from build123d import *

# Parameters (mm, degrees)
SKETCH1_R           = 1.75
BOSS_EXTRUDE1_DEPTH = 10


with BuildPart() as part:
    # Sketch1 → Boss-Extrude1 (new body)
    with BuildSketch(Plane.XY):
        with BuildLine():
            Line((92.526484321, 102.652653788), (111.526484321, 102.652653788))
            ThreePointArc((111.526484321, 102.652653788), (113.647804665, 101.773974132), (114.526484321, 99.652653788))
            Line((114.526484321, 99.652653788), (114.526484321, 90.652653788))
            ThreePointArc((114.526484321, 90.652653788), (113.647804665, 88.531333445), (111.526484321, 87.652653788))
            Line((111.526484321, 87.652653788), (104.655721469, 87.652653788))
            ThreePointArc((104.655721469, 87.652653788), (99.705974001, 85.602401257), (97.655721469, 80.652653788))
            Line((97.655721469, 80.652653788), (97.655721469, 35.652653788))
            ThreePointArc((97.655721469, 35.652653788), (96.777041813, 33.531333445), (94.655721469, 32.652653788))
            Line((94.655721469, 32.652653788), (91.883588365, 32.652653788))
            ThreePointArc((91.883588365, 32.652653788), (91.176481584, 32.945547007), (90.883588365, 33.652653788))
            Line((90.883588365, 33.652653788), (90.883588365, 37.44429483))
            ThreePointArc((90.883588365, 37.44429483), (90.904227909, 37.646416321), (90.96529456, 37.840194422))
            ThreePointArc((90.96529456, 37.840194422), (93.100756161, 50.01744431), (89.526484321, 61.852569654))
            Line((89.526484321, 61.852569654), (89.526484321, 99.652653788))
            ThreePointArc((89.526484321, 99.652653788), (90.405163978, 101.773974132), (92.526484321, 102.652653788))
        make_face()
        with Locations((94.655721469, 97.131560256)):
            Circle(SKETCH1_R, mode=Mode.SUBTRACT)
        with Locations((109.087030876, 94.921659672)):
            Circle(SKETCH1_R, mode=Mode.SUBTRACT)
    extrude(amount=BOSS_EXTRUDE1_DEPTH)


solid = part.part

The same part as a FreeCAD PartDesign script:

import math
import FreeCAD as App
import Part
import Sketcher
from FreeCAD import Vector
Q = App.Units.Quantity

doc = App.newDocument("Part")
body = doc.addObject("PartDesign::Body", "Body")

sketch1 = doc.addObject("Sketcher::SketchObject", "Sketch")
body.addObject(sketch1)
sketch1.AttachmentSupport = (doc.XY_Plane, [""])
sketch1.MapMode = "FlatFace"
sketch1.addGeometry(Part.LineSegment(Vector(111.53, 102.65, 0), Vector(92.53, 102.65, 0)), False)
sketch1.addGeometry(Part.ArcOfCircle(Part.Circle(Vector(92.53, 99.65, 0), Vector(0, 0, 1), 3), math.radians(90), math.radians(180)), False)
sketch1.addGeometry(Part.LineSegment(Vector(89.53, 99.65, 0), Vector(89.53, 61.85, 0)), False)
sketch1.addGeometry(Part.ArcOfCircle(Part.Circle(Vector(66.43, 48.42, 0), Vector(0, 0, 1), 26.72), math.radians(-23), math.radians(30)), False)
sketch1.addGeometry(Part.ArcOfCircle(Part.Circle(Vector(91.88, 37.44, 0), Vector(0, 0, 1), 1), math.radians(157), math.radians(180)), False)
sketch1.addGeometry(Part.LineSegment(Vector(90.88, 37.44, 0), Vector(90.88, 33.65, 0)), False)
sketch1.addGeometry(Part.ArcOfCircle(Part.Circle(Vector(91.88, 33.65, 0), Vector(0, 0, 1), 1), math.radians(-180), math.radians(-90)), False)
sketch1.addGeometry(Part.LineSegment(Vector(91.88, 32.65, 0), Vector(94.66, 32.65, 0)), False)
sketch1.addGeometry(Part.ArcOfCircle(Part.Circle(Vector(94.66, 35.65, 0), Vector(0, 0, 1), 3), math.radians(-90), math.radians(0)), False)
sketch1.addGeometry(Part.LineSegment(Vector(97.66, 35.65, 0), Vector(97.66, 80.65, 0)), False)
sketch1.addGeometry(Part.ArcOfCircle(Part.Circle(Vector(104.66, 80.65, 0), Vector(0, 0, 1), 7), math.radians(90), math.radians(180)), False)
sketch1.addGeometry(Part.LineSegment(Vector(104.66, 87.65, 0), Vector(111.53, 87.65, 0)), False)
sketch1.addGeometry(Part.ArcOfCircle(Part.Circle(Vector(111.53, 90.65, 0), Vector(0, 0, 1), 3), math.radians(-90), math.radians(0)), False)
sketch1.addGeometry(Part.LineSegment(Vector(114.53, 90.65, 0), Vector(114.53, 99.65, 0)), False)
sketch1.addGeometry(Part.ArcOfCircle(Part.Circle(Vector(111.53, 99.65, 0), Vector(0, 0, 1), 3), math.radians(0), math.radians(90)), False)
sketch1.addGeometry(Part.Circle(Vector(109.09, 94.92, 0), Vector(0, 0, 1), 1.75), False)
sketch1.addGeometry(Part.Circle(Vector(94.66, 97.13, 0), Vector(0, 0, 1), 1.75), False)
sketch1.addConstraint(Sketcher.Constraint("Tangent", 0, 2, 1, 1))
sketch1.addConstraint(Sketcher.Constraint("Tangent", 1, 2, 2, 1))
sketch1.addConstraint(Sketcher.Constraint("Coincident", 2, 2, 3, 2))
sketch1.addConstraint(Sketcher.Constraint("Tangent", 3, 1, 4, 1))
sketch1.addConstraint(Sketcher.Constraint("Tangent", 4, 2, 5, 1))
sketch1.addConstraint(Sketcher.Constraint("Tangent", 5, 2, 6, 1))
sketch1.addConstraint(Sketcher.Constraint("Tangent", 6, 2, 7, 1))
sketch1.addConstraint(Sketcher.Constraint("Tangent", 7, 2, 8, 1))
sketch1.addConstraint(Sketcher.Constraint("Tangent", 8, 2, 9, 1))
sketch1.addConstraint(Sketcher.Constraint("Tangent", 9, 2, 10, 2))
sketch1.addConstraint(Sketcher.Constraint("Tangent", 10, 1, 11, 1))
sketch1.addConstraint(Sketcher.Constraint("Tangent", 11, 2, 12, 1))
sketch1.addConstraint(Sketcher.Constraint("Tangent", 12, 2, 13, 1))
sketch1.addConstraint(Sketcher.Constraint("Tangent", 13, 2, 14, 1))
sketch1.addConstraint(Sketcher.Constraint("Tangent", 14, 2, 0, 1))
sketch1.addConstraint(Sketcher.Constraint("Horizontal", 0))
sketch1.addConstraint(Sketcher.Constraint("Vertical", 2))
sketch1.addConstraint(Sketcher.Constraint("Vertical", 5))
sketch1.addConstraint(Sketcher.Constraint("Horizontal", 7))
sketch1.addConstraint(Sketcher.Constraint("Vertical", 9))
sketch1.addConstraint(Sketcher.Constraint("Horizontal", 11))
sketch1.addConstraint(Sketcher.Constraint("Vertical", 13))
sketch1.addConstraint(Sketcher.Constraint("Equal", 4, 6))
sketch1.addConstraint(Sketcher.Constraint("Equal", 1, 8))
sketch1.addConstraint(Sketcher.Constraint("Equal", 8, 12))
sketch1.addConstraint(Sketcher.Constraint("Equal", 12, 14))
sketch1.addConstraint(Sketcher.Constraint("Equal", 15, 16))
sketch1.addConstraint(Sketcher.Constraint("Vertical", 8, 3, 16, 3))
sketch1.addConstraint(Sketcher.Constraint("Radius", 1, Q("3 mm")))
sketch1.addConstraint(Sketcher.Constraint("Radius", 4, Q("1 mm")))
sketch1.addConstraint(Sketcher.Constraint("Radius", 10, Q("7 mm")))
sketch1.addConstraint(Sketcher.Constraint("Diameter", 15, Q("3.5 mm")))
sketch1.addConstraint(Sketcher.Constraint("DistanceX", 0, 2, 0, 1, Q("19 mm")))
sketch1.addConstraint(Sketcher.Constraint("DistanceY", 9, 1, 9, 2, Q("45 mm")))
sketch1.addConstraint(Sketcher.Constraint("DistanceY", 13, 1, 13, 2, Q("9 mm")))
sketch1.addConstraint(Sketcher.Constraint("Radius", 3, Q("26.721381 mm")))
sketch1.addConstraint(Sketcher.Constraint("DistanceY", 5, 2, 5, 1, Q("3.791641 mm")))
sketch1.addConstraint(Sketcher.Constraint("DistanceY", 15, 3, 16, 3, Q("2.209901 mm")))
sketch1.addConstraint(Sketcher.Constraint("DistanceX", 7, 1, 7, 2, Q("2.772133 mm")))
sketch1.addConstraint(Sketcher.Constraint("DistanceX", 11, 1, 11, 2, Q("6.870763 mm")))
sketch1.addConstraint(Sketcher.Constraint("DistanceY", 2, 2, 2, 1, Q("37.800084 mm")))
sketch1.addConstraint(Sketcher.Constraint("DistanceY", -1, 1, 3, 3, Q("48.419178 mm")))
sketch1.addConstraint(Sketcher.Constraint("DistanceX", -1, 1, 4, 3, Q("91.883588 mm")))
sketch1.addConstraint(Sketcher.Constraint("DistanceX", -1, 1, 15, 3, Q("109.087031 mm")))
sketch1.addConstraint(Sketcher.Constraint("DistanceY", -1, 1, 15, 3, Q("94.92166 mm")))
pad1 = doc.addObject("PartDesign::Pad", "Pad")
body.addObject(pad1)
pad1.Profile = sketch1
pad1.Length = 10

doc.recompute()
